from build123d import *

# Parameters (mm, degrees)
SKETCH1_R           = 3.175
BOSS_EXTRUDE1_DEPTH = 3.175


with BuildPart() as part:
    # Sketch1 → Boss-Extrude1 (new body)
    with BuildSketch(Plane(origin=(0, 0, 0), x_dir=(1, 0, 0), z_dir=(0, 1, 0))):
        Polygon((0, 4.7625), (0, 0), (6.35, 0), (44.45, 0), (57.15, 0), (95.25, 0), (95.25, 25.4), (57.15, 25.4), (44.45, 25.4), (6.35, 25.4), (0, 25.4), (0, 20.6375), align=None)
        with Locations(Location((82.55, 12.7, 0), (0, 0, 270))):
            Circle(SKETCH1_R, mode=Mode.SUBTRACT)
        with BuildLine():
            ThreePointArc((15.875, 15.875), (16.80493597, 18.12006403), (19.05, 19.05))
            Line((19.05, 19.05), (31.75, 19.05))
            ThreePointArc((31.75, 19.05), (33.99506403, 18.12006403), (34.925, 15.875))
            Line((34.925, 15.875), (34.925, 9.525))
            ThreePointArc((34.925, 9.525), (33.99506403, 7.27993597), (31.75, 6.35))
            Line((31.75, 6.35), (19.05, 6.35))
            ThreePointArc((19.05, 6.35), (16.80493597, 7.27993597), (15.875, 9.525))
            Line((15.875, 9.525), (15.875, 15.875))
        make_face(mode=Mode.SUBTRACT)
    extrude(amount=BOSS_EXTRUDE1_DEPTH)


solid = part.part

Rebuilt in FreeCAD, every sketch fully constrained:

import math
import FreeCAD as App
import Part
import Sketcher

V = App.Vector
Q = App.Units.Quantity

doc = App.newDocument("Part")
body = doc.addObject("PartDesign::Body", "Body")

sketch1 = body.newObject("Sketcher::SketchObject", "Sketch")
sketch1.AttachmentSupport = (doc.getObject("XZ_Plane"), [""])
sketch1.MapMode = "FlatFace"
sketch1.addGeometry(Part.LineSegment(V(0, 0, 0), V(95.2, 0, 0)), False)
sketch1.addGeometry(Part.LineSegment(V(95.2, 0, 0), V(95.2, -25.4, 0)), False)
sketch1.addGeometry(Part.LineSegment(V(95.2, -25.4, 0), V(0, -25.4, 0)), False)
sketch1.addGeometry(Part.LineSegment(V(0, -25.4, 0), V(0, 0, 0)), False)
sketch1.addGeometry(Part.Circle(V(82.5, -12.7, 0), V(0, 0, 1), 3.2), False)
sketch1.addGeometry(Part.LineSegment(V(15.9, -9.5, 0), V(15.9, -15.9, 0)), False)
sketch1.addGeometry(Part.ArcOfCircle(Part.Circle(V(19.1, -15.9, 0), V(0, 0, 1), 3.2), math.radians(-180), math.radians(-90)), False)
sketch1.addGeometry(Part.LineSegment(V(19.1, -19.1, 0), V(31.8, -19.1, 0)), False)
sketch1.addGeometry(Part.ArcOfCircle(Part.Circle(V(31.7, -15.9, 0), V(0, 0, 1), 3.2), math.radians(-90), math.radians(0)), False)
sketch1.addGeometry(Part.LineSegment(V(34.9, -15.9, 0), V(34.9, -9.5, 0)), False)
sketch1.addGeometry(Part.ArcOfCircle(Part.Circle(V(31.7, -9.5, 0), V(0, 0, 1), 3.2), math.radians(0), math.radians(90)), False)
sketch1.addGeometry(Part.LineSegment(V(31.8, -6.3, 0), V(19.1, -6.3, 0)), False)
sketch1.addGeometry(Part.ArcOfCircle(Part.Circle(V(19.1, -9.5, 0), V(0, 0, 1), 3.2), math.radians(90), math.radians(180)), False)
sketch1.addConstraint(Sketcher.Constraint("Coincident", 0, 2, 1, 1))
sketch1.addConstraint(Sketcher.Constraint("Coincident", 1, 2, 2, 1))
sketch1.addConstraint(Sketcher.Constraint("Coincident", 2, 2, 3, 1))
sketch1.addConstraint(Sketcher.Constraint("Coincident", 3, 2, 0, 1))
sketch1.addConstraint(Sketcher.Constraint("Tangent", 5, 2, 6, 1))
sketch1.addConstraint(Sketcher.Constraint("Tangent", 6, 2, 7, 1))
sketch1.addConstraint(Sketcher.Constraint("Tangent", 7, 2, 8, 1))
sketch1.addConstraint(Sketcher.Constraint("Tangent", 8, 2, 9, 1))
sketch1.addConstraint(Sketcher.Constraint("Tangent", 9, 2, 10, 1))
sketch1.addConstraint(Sketcher.Constraint("Tangent", 10, 2, 11, 1))
sketch1.addConstraint(Sketcher.Constraint("Tangent", 11, 2, 12, 1))
sketch1.addConstraint(Sketcher.Constraint("Tangent", 12, 2, 5, 1))
sketch1.addConstraint(Sketcher.Constraint("Horizontal", 0))
sketch1.addConstraint(Sketcher.Constraint("Vertical", 1))
sketch1.addConstraint(Sketcher.Constraint("Horizontal", 2))
sketch1.addConstraint(Sketcher.Constraint("Vertical", 3))
sketch1.addConstraint(Sketcher.Constraint("Vertical", 5))
sketch1.addConstraint(Sketcher.Constraint("Horizontal", 7))
sketch1.addConstraint(Sketcher.Constraint("Vertical", 9))
sketch1.addConstraint(Sketcher.Constraint("Horizontal", 11))
sketch1.addConstraint(Sketcher.Constraint("Coincident", 3, 2, -1, 1))
sketch1.addConstraint(Sketcher.Constraint("Equal", 4, 6))
sketch1.addConstraint(Sketcher.Constraint("Equal", 6, 8))
sketch1.addConstraint(Sketcher.Constraint("Equal", 8, 10))
sketch1.addConstraint(Sketcher.Constraint("Equal", 10, 12))
sketch1.addConstraint(Sketcher.Constraint("Diameter", 4, Q("0.25 in")))
sketch1.addConstraint(Sketcher.Constraint("DistanceY", 1, 2, 1, 1, Q("1 in")))
sketch1.addConstraint(Sketcher.Constraint("DistanceX", 7, 1, 7, 2, Q("0.5 in")))
sketch1.addConstraint(Sketcher.Constraint("DistanceX", 8, 3, 4, 3, Q("2 in")))
sketch1.addConstraint(Sketcher.Constraint("DistanceX", 12, 3, 0, 2, Q("3 in")))
sketch1.addConstraint(Sketcher.Constraint("DistanceX", 0, 1, 0, 2, Q("3.75 in")))
sketch1.addConstraint(Sketcher.Constraint("DistanceY", 5, 2, 5, 1, Q("0.25 in")))
sketch1.addConstraint(Sketcher.Constraint("DistanceY", 4, 3, -1, 1, Q("0.5 in")))
sketch1.addConstraint(Sketcher.Constraint("DistanceY", 6, 2, -1, 1, Q("0.75 in")))
pad1 = body.newObject("PartDesign::Pad", "Pad")
pad1.Profile = sketch1
pad1.Length = Q("0.125 in")
pad1.Reversed = True

doc.recompute()
